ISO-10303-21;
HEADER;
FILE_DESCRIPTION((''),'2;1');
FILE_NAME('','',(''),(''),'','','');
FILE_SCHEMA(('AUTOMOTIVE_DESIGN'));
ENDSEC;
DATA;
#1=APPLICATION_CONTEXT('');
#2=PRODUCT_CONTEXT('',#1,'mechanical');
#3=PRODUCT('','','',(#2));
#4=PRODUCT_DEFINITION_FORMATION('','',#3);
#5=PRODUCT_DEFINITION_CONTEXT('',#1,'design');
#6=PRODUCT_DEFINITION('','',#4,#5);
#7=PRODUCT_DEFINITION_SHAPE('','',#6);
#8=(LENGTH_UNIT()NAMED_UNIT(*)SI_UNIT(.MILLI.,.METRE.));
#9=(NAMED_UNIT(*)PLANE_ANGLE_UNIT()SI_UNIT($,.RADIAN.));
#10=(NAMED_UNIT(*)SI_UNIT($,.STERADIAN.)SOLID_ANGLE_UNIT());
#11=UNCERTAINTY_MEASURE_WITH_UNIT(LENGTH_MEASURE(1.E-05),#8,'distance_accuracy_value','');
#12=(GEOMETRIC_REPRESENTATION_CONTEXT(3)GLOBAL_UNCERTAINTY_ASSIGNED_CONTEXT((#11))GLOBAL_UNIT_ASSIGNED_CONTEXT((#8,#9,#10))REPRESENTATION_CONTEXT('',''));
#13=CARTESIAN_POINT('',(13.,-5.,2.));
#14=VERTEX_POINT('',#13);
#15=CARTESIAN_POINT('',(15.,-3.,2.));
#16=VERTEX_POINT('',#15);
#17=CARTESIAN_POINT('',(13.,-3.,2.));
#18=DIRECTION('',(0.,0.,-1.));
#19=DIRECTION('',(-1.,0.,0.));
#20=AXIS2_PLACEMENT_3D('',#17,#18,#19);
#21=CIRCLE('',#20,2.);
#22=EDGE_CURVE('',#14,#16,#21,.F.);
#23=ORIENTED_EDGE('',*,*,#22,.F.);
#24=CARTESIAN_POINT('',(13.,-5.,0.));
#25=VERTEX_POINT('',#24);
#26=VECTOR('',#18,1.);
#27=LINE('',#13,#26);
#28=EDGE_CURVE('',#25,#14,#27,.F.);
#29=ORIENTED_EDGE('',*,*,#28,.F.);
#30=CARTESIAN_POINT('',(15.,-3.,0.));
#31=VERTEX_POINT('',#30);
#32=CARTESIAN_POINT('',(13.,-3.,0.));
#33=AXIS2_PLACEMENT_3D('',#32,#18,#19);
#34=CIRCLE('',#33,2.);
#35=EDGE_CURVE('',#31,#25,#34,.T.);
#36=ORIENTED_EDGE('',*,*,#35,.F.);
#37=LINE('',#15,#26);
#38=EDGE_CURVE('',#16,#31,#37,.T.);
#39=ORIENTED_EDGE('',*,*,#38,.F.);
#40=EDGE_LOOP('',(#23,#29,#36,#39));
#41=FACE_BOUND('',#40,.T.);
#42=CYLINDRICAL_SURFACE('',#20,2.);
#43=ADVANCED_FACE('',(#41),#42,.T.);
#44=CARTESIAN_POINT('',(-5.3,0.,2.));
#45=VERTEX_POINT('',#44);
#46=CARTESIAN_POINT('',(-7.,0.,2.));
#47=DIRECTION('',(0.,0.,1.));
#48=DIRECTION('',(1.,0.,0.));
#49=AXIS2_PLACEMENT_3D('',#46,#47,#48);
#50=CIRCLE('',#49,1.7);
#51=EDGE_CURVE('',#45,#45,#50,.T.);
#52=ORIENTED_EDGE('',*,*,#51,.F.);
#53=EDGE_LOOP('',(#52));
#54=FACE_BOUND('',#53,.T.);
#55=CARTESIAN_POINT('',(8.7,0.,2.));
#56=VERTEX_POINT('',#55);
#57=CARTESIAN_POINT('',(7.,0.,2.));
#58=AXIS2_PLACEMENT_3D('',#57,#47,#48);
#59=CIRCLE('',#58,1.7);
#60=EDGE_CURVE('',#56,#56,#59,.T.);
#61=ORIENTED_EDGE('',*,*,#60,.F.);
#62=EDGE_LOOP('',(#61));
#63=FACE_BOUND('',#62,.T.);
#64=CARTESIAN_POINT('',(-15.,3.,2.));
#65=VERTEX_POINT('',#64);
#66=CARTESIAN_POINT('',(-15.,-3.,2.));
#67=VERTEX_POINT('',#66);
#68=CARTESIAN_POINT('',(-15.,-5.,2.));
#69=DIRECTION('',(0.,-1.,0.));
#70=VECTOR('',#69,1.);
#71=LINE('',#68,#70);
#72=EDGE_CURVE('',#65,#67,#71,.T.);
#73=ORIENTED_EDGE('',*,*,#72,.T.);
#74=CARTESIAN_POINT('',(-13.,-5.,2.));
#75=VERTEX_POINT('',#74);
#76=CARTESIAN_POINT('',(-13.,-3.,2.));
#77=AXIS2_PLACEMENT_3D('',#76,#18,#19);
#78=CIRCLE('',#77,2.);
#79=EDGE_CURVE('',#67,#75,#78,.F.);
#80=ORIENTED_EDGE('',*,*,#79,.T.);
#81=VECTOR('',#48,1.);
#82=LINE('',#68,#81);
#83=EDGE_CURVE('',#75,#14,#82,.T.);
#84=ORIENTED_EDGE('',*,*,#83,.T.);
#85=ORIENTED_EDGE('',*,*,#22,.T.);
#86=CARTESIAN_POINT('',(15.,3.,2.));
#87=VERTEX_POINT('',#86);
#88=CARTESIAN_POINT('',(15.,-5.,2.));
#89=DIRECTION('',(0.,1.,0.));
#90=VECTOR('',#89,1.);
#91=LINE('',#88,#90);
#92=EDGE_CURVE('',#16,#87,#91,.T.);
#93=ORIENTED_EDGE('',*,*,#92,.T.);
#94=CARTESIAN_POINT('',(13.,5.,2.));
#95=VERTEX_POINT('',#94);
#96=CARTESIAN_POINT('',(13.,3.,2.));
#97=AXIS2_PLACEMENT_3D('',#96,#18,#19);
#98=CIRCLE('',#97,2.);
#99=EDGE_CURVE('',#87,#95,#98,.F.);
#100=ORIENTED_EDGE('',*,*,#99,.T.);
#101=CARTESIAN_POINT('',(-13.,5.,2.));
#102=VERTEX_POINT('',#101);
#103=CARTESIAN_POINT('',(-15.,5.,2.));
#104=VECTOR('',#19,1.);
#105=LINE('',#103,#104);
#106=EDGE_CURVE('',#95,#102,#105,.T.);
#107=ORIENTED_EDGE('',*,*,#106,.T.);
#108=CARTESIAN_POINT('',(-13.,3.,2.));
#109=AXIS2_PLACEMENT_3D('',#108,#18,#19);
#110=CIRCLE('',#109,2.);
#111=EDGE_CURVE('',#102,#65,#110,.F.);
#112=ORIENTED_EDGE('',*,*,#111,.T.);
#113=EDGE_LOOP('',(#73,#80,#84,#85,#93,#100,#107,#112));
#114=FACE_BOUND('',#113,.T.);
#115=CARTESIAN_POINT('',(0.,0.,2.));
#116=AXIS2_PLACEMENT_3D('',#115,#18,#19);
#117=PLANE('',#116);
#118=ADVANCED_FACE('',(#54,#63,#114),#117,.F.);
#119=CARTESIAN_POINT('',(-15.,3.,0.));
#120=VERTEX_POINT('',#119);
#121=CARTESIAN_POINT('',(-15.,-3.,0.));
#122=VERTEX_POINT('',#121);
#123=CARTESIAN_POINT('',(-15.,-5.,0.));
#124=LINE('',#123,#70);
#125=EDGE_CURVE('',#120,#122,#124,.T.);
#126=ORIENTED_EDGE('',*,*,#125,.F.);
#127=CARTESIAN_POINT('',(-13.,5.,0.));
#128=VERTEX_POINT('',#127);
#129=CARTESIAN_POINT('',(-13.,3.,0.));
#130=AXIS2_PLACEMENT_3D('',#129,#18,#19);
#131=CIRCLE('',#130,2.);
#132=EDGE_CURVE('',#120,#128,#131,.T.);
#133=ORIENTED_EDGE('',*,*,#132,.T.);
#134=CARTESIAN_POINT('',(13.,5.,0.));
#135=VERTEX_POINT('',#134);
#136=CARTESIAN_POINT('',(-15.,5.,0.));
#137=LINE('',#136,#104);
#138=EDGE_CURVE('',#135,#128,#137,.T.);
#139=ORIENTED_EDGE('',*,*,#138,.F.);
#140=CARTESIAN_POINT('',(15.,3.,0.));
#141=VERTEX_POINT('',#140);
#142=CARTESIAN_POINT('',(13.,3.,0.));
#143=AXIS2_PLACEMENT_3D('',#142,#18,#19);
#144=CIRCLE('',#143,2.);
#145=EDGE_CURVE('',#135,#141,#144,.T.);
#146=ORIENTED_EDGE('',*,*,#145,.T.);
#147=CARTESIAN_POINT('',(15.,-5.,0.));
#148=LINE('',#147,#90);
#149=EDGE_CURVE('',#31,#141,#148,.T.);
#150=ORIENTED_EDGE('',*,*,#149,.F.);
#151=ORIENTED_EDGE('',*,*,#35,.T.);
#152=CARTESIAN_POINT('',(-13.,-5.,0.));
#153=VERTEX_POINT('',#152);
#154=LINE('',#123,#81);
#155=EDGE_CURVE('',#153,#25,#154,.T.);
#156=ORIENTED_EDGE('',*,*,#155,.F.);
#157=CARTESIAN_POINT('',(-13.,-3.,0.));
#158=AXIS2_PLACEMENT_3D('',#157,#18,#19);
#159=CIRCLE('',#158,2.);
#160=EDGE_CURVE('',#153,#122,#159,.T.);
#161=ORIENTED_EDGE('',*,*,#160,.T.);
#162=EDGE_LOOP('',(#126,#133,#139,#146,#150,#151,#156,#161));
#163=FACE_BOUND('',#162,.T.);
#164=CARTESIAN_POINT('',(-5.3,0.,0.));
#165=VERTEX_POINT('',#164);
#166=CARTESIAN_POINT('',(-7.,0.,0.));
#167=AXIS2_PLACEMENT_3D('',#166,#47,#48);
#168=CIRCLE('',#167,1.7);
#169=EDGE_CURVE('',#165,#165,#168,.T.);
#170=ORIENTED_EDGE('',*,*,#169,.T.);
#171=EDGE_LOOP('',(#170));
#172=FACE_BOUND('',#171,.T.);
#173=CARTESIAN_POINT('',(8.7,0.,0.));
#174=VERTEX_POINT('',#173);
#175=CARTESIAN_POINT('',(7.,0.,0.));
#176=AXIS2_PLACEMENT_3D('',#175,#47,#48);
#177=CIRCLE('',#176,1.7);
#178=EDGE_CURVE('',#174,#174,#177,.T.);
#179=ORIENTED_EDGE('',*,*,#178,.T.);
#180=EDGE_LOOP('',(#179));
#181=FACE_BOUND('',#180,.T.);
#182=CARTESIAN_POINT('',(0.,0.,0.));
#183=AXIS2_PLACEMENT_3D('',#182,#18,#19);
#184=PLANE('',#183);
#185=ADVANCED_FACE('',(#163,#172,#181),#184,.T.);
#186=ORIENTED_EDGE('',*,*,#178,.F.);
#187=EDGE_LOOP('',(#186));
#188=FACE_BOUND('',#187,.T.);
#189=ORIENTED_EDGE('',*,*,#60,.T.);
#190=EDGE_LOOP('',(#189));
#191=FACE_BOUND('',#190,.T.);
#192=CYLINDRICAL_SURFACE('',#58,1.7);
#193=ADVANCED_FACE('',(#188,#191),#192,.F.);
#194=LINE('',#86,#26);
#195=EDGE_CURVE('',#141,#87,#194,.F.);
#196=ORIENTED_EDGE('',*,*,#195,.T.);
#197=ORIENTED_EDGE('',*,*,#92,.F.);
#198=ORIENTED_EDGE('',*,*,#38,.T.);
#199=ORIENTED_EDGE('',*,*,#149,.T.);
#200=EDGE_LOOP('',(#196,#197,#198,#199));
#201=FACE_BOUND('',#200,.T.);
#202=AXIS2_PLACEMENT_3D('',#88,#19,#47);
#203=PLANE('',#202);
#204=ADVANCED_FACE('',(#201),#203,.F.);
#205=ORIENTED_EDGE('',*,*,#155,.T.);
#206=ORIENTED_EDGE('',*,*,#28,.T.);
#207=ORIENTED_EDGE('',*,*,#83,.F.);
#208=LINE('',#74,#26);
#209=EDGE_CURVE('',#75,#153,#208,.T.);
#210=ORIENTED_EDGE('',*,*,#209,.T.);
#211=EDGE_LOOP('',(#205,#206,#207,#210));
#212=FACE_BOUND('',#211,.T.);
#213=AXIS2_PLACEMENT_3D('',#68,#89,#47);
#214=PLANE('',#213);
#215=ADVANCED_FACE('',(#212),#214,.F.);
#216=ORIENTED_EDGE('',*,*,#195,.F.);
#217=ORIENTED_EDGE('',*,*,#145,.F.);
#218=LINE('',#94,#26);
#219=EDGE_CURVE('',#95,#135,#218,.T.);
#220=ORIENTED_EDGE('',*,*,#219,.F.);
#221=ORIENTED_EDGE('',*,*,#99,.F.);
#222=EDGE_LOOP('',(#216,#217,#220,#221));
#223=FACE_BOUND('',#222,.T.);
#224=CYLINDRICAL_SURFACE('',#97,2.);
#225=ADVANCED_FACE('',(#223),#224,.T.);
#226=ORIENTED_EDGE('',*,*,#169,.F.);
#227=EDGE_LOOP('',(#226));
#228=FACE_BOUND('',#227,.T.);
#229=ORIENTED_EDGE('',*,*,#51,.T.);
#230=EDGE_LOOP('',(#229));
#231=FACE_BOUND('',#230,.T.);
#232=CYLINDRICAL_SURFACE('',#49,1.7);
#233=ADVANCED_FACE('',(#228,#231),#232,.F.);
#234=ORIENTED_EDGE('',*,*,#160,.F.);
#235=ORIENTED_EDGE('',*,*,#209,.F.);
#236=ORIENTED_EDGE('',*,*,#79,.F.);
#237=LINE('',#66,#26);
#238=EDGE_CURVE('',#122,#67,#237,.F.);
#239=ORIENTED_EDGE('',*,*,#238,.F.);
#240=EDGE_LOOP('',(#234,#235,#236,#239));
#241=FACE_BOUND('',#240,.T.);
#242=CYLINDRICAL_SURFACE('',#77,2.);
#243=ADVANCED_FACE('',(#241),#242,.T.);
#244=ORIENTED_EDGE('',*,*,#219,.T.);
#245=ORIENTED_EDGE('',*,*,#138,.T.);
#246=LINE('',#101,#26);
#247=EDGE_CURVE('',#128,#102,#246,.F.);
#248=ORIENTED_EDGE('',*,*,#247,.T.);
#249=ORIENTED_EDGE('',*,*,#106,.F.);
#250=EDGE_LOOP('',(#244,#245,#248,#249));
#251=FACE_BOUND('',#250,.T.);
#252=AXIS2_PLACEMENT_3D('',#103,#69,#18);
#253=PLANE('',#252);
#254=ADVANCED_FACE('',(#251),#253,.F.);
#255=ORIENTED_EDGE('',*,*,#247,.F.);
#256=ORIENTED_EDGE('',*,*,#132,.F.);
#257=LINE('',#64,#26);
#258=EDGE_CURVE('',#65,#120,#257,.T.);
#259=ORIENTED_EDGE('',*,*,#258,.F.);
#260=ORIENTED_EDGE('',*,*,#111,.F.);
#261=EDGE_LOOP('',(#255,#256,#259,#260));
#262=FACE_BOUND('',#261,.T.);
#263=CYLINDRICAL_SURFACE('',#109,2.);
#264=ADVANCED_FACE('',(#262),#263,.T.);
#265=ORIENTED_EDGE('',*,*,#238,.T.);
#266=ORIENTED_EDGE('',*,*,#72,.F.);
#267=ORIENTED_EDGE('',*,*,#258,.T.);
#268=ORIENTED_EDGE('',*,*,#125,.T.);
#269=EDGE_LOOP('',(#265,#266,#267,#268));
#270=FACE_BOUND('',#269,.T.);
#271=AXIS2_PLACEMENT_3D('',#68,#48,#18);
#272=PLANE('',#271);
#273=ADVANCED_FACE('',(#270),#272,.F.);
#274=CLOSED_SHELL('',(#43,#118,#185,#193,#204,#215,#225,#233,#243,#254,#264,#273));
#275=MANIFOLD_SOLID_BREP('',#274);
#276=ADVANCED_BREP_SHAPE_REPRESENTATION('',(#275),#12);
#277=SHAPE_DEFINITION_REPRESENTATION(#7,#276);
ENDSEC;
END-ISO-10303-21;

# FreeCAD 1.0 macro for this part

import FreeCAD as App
import Part
import Sketcher
Q = App.Units.Quantity


def edges_at(feature, points):
    """Names of the edges that pass closest to the given points."""
    edges = feature.Shape.Edges
    near = lambda p: min(range(len(edges)), key=lambda i: edges[i].distToShape(Part.Vertex(*p))[0])
    return sorted({f"Edge{near(p) + 1}" for p in points})


def add_polygon(sketch, points):
    """Adds a closed chain of lines whose ends are joined by coincident constraints."""
    first, n = sketch.GeometryCount, len(points)
    for a, b in zip(points, points[1:] + points[:1]):
        sketch.addGeometry(Part.LineSegment(App.Vector(*a, 0), App.Vector(*b, 0)), False)
    for i in range(n):
        sketch.addConstraint(Sketcher.Constraint("Coincident", first + i, 2, first + (i + 1) % n, 1))

doc = App.newDocument("Part")
body = doc.addObject("PartDesign::Body", "Body")

# Sketch on XY plane
sketch1 = body.newObject("Sketcher::SketchObject", "Sketch")
sketch1.AttachmentSupport = (doc.getObject("XY_Plane"), [""])
sketch1.MapMode = "FlatFace"
add_polygon(sketch1, [(-15, 5), (-15, -5), (15, -5), (15, 5)])  # lines 0-3
sketch1.addConstraint(Sketcher.Constraint("Vertical", 0))
sketch1.addConstraint(Sketcher.Constraint("Horizontal", 1))
sketch1.addConstraint(Sketcher.Constraint("Vertical", 2))
sketch1.addConstraint(Sketcher.Constraint("Horizontal", 3))
sketch1.addConstraint(Sketcher.Constraint("Symmetric", 0, 2, 2, 2, -1, 1))
sketch1.addConstraint(Sketcher.Constraint("DistanceX", 1, 1, 1, 2, Q("30 mm")))
sketch1.addConstraint(Sketcher.Constraint("DistanceY", 0, 2, 0, 1, Q("10 mm")))
pad1 = body.newObject("PartDesign::Pad", "Pad")
pad1.Profile = sketch1
pad1.Length = 2

# Sketch on XY plane
sketch2 = body.newObject("Sketcher::SketchObject", "Sketch001")
sketch2.AttachmentSupport = (doc.getObject("XY_Plane"), [""])
sketch2.MapMode = "FlatFace"
sketch2.AttachmentOffset = App.Placement(App.Vector(0, 0, 2), App.Rotation())
sketch2.addGeometry(Part.Circle(App.Vector(-7, 0, 0), App.Vector(0, 0, 1), 1.7), False)
sketch2.addGeometry(Part.Circle(App.Vector(7, 0, 0), App.Vector(0, 0, 1), 1.7), False)
sketch2.addConstraint(Sketcher.Constraint("Equal", 0, 1))
sketch2.addConstraint(Sketcher.Constraint("Symmetric", 0, 3, 1, 3, -1, 1))
sketch2.addConstraint(Sketcher.Constraint("PointOnObject", 0, 3, -1))
sketch2.addConstraint(Sketcher.Constraint("Diameter", 0, Q("3.4 mm")))
sketch2.addConstraint(Sketcher.Constraint("DistanceX", 0, 3, -1, 1, Q("7 mm")))
doc.recompute()
hole = body.newObject("PartDesign::Hole", "Hole")
hole.Profile = sketch2
hole.ThreadType = "None"
hole.Diameter = 3.4
hole.DepthType = "ThroughAll"
doc.recompute()

fillet = body.newObject("PartDesign::Fillet", "Fillet")
fillet.Base = (hole, edges_at(hole, [
    (15, -5, 1),
    (-15, -5, 1),
    (-15, 5, 1),
    (15, 5, 1),
]))
fillet.Radius = 2

doc.recompute()
